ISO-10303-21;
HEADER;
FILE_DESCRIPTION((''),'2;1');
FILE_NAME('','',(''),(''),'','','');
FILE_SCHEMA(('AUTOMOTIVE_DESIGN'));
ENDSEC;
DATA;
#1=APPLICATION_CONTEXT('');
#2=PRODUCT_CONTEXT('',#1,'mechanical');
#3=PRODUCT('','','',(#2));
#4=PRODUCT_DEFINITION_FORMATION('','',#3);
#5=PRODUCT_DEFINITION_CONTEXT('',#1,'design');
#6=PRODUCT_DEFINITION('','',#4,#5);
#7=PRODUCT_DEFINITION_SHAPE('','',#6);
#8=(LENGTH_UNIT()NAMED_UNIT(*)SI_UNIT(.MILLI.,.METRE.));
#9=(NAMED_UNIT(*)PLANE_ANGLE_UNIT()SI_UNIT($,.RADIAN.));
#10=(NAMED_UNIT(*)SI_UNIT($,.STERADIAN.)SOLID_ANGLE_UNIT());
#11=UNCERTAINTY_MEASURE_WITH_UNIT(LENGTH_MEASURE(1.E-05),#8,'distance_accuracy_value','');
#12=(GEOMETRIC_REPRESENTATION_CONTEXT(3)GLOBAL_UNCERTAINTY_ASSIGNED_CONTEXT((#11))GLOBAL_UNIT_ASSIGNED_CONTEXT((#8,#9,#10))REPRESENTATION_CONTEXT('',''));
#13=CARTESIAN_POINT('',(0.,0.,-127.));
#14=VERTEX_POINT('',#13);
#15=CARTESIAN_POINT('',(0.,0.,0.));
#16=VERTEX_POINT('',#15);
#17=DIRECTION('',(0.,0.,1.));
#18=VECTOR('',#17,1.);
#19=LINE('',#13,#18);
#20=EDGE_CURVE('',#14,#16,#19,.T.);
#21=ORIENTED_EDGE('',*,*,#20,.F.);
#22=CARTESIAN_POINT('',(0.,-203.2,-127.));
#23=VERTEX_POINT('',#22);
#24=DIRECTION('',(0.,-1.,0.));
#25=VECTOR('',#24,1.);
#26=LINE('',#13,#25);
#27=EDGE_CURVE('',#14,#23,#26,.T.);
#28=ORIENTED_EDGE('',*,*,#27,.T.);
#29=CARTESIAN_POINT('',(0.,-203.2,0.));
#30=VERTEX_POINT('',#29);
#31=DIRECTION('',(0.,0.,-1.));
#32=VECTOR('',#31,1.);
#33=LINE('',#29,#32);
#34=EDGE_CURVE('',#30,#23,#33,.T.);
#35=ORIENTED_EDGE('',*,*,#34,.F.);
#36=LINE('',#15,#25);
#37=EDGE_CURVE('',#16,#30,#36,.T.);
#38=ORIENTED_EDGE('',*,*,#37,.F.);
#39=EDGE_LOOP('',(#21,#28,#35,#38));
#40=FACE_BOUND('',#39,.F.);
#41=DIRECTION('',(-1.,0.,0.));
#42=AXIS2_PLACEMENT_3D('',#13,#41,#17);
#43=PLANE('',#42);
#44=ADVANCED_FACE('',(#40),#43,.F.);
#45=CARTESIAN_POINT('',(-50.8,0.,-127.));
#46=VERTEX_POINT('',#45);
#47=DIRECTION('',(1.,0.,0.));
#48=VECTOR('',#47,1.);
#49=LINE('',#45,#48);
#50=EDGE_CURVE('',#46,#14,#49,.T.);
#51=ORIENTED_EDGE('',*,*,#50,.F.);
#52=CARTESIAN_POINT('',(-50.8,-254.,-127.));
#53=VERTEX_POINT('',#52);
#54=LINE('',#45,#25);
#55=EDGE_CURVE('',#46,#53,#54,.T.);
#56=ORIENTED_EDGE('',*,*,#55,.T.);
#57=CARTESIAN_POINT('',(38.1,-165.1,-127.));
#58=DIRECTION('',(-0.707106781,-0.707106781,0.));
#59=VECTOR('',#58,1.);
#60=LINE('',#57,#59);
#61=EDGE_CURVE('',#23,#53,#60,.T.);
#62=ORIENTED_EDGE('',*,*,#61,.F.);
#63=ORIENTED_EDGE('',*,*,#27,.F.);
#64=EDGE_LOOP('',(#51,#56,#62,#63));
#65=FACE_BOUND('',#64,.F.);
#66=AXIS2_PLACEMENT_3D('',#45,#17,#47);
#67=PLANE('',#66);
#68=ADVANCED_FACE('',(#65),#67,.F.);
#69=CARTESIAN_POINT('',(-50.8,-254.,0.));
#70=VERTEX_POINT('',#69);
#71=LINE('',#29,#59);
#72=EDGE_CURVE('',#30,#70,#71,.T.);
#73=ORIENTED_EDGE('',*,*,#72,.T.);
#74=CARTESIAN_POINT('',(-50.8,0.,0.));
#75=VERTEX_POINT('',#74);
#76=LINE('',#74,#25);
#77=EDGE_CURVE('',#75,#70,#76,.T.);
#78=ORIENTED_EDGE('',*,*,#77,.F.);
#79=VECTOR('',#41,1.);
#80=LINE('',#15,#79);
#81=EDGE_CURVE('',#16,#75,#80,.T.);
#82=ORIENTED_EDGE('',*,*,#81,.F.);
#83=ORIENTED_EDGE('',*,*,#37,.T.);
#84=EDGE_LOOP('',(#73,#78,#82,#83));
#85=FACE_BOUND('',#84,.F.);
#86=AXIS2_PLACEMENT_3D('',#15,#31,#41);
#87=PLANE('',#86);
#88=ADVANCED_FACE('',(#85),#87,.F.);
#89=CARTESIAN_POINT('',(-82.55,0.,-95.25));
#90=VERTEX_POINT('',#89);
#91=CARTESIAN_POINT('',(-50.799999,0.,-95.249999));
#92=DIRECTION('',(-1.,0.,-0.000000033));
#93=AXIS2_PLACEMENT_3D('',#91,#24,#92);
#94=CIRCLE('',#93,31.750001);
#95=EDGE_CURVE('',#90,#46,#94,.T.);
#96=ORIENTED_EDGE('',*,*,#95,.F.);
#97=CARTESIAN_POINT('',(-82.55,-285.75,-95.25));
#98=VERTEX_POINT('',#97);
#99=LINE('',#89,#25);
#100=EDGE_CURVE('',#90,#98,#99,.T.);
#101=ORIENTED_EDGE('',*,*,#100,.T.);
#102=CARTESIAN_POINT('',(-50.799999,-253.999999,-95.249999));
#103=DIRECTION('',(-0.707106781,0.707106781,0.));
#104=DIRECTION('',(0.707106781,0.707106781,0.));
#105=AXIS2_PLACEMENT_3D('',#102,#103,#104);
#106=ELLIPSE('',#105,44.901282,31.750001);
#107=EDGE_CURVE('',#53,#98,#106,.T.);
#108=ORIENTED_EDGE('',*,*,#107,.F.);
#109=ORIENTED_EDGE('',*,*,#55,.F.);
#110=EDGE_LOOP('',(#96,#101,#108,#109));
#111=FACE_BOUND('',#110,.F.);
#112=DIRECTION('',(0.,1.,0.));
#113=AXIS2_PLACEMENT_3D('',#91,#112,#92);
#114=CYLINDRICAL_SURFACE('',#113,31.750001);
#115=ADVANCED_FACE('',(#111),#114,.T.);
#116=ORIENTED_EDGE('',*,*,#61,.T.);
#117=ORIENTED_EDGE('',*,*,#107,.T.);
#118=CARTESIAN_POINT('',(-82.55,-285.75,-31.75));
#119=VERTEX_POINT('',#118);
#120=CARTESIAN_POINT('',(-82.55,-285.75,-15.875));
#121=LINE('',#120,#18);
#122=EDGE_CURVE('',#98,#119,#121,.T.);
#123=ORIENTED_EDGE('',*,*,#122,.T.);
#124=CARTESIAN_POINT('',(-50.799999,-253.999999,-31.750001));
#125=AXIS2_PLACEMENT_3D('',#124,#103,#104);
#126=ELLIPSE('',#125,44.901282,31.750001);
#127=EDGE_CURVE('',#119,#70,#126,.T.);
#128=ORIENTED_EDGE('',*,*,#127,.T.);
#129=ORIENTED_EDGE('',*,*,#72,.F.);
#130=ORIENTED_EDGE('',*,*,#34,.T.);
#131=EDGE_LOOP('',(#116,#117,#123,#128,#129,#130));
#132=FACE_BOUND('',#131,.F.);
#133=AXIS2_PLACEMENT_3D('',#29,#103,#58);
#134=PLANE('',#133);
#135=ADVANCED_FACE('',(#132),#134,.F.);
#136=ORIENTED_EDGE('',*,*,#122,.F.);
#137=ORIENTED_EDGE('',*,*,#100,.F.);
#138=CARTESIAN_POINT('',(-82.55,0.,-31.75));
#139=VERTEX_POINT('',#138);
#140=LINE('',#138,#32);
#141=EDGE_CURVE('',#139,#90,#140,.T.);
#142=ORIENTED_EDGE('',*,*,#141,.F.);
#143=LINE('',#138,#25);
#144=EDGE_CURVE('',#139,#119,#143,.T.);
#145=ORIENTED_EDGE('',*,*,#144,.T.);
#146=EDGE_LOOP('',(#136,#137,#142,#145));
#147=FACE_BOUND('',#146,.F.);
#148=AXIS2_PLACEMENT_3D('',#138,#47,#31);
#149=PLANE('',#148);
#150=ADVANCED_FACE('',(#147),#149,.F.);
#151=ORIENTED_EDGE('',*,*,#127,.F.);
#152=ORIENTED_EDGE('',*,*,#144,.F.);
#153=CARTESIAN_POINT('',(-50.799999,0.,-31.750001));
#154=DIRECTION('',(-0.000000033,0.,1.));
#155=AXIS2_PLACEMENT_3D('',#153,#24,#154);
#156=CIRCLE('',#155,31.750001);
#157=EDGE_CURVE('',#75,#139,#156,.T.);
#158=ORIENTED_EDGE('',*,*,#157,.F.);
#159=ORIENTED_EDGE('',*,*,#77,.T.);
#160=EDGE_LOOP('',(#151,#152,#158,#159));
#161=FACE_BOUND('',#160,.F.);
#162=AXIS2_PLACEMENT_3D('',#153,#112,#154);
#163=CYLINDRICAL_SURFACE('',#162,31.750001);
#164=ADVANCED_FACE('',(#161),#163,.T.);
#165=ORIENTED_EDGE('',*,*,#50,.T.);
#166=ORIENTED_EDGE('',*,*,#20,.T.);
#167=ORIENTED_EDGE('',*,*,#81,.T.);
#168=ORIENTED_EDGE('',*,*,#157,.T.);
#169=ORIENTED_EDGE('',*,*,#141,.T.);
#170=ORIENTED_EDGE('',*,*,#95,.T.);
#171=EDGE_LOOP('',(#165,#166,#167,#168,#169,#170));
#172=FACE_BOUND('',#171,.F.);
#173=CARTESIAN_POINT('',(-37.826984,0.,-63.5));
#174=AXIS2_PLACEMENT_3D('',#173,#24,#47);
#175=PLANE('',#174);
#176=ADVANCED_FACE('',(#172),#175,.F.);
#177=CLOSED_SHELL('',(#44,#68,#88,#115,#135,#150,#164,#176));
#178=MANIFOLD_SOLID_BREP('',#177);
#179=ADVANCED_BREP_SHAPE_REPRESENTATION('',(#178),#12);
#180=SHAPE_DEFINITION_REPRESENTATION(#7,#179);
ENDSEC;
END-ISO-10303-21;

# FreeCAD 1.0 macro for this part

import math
import FreeCAD as App
import Part
import Sketcher
from FreeCAD import Vector
Q = App.Units.Quantity

doc = App.newDocument("Part")
body = doc.addObject("PartDesign::Body", "Body")

# Sketch on XZ plane
sketch1 = body.newObject("Sketcher::SketchObject", "Sketch")
sketch1.AttachmentSupport = (doc.getObject("XZ_Plane"), [""])
sketch1.MapMode = "FlatFace"
sketch1.addGeometry(Part.LineSegment(Vector(0, -127, 0), Vector(0, 0, 0)), False)
sketch1.addGeometry(Part.LineSegment(Vector(0, 0, 0), Vector(-50.8, 0, 0)), False)
sketch1.addGeometry(Part.ArcOfCircle(Part.Circle(Vector(-50.799999, -31.750001, 0), Vector(0, 0, 1), 31.750001), math.radians(90.000002), math.radians(179.999998)), False)
sketch1.addGeometry(Part.LineSegment(Vector(-82.55, -31.75, 0), Vector(-82.55, -95.25, 0)), False)
sketch1.addGeometry(Part.ArcOfCircle(Part.Circle(Vector(-50.799999, -95.249999, 0), Vector(0, 0, 1), 31.750001), math.radians(-179.999998), math.radians(-90.000002)), False)
sketch1.addGeometry(Part.LineSegment(Vector(-50.8, -127, 0), Vector(0, -127, 0)), False)
sketch1.addConstraint(Sketcher.Constraint("Coincident", 0, 2, 1, 1))
sketch1.addConstraint(Sketcher.Constraint("Tangent", 1, 2, 2, 1))
sketch1.addConstraint(Sketcher.Constraint("Tangent", 2, 2, 3, 1))
sketch1.addConstraint(Sketcher.Constraint("Tangent", 3, 2, 4, 1))
sketch1.addConstraint(Sketcher.Constraint("Tangent", 4, 2, 5, 1))
sketch1.addConstraint(Sketcher.Constraint("Coincident", 5, 2, 0, 1))
sketch1.addConstraint(Sketcher.Constraint("Vertical", 0))
sketch1.addConstraint(Sketcher.Constraint("Horizontal", 1))
sketch1.addConstraint(Sketcher.Constraint("Vertical", 3))
sketch1.addConstraint(Sketcher.Constraint("Horizontal", 5))
sketch1.addConstraint(Sketcher.Constraint("Coincident", 0, 2, -1, 1))
sketch1.addConstraint(Sketcher.Constraint("Equal", 2, 4))
sketch1.addConstraint(Sketcher.Constraint("DistanceX", 1, 2, 1, 1, Q("2 in")))
sketch1.addConstraint(Sketcher.Constraint("DistanceY", 0, 1, 0, 2, Q("5 in")))
sketch1.addConstraint(Sketcher.Constraint("Radius", 2, Q("1.25 in")))
pad1 = body.newObject("PartDesign::Pad", "Pad")
pad1.Profile = sketch1
pad1.Length = Q("14 in")

# Sketch on XY plane
sketch2 = body.newObject("Sketcher::SketchObject", "Sketch001")
sketch2.AttachmentSupport = (doc.getObject("XY_Plane"), [""])
sketch2.MapMode = "FlatFace"
sketch2.addGeometry(Part.LineSegment(Vector(0, -355.6, 0), Vector(0, -203.2, 0)), False)
sketch2.addGeometry(Part.LineSegment(Vector(0, -203.2, 0), Vector(-152.4, -355.6, 0)), False)
sketch2.addGeometry(Part.LineSegment(Vector(-152.4, -355.6, 0), Vector(0, -355.6, 0)), False)
sketch2.addConstraint(Sketcher.Constraint("Coincident", 0, 2, 1, 1))
sketch2.addConstraint(Sketcher.Constraint("Coincident", 1, 2, 2, 1))
sketch2.addConstraint(Sketcher.Constraint("Coincident", 2, 2, 0, 1))
sketch2.addConstraint(Sketcher.Constraint("Vertical", 0))
sketch2.addConstraint(Sketcher.Constraint("Horizontal", 2))
sketch2.addConstraint(Sketcher.Constraint("PointOnObject", 0, 2, -2))
sketch2.addConstraint(Sketcher.Constraint("Equal", 2, 0))
sketch2.addConstraint(Sketcher.Constraint("DistanceX", 2, 1, 2, 2, Q("6 in")))
sketch2.addConstraint(Sketcher.Constraint("DistanceY", 0, 2, -1, 1, Q("8 in")))
pocket1 = body.newObject("PartDesign::Pocket", "Pocket")
pocket1.Profile = sketch2
pocket1.Type = "ThroughAll"

doc.recompute()
